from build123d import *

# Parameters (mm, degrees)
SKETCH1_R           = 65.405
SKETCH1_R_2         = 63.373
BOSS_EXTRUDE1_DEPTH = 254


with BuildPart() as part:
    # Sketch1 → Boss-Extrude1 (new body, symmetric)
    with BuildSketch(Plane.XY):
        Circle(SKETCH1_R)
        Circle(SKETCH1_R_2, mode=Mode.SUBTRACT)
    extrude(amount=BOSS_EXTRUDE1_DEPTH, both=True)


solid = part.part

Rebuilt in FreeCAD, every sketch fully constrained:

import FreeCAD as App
import Part
import Sketcher
from FreeCAD import Vector
Q = App.Units.Quantity

doc = App.newDocument("Part")
body = doc.addObject("PartDesign::Body", "Body")

# Sketch on XY plane
sketch1 = doc.addObject("Sketcher::SketchObject", "Sketch")
body.addObject(sketch1)
sketch1.AttachmentSupport = (doc.XY_Plane, [""])
sketch1.MapMode = "FlatFace"
sketch1.addGeometry([
    Part.Circle(Vector(0, 0, 0), Vector(0, 0, 1), 65),
    Part.Circle(Vector(0, 0, 0), Vector(0, 0, 1), 63),
], False)
sketch1.addConstraint([
    Sketcher.Constraint("Coincident", 0, 3, -1, 1),
    Sketcher.Constraint("Coincident", 1, 3, -1, 1),
    Sketcher.Constraint("Diameter", 0, Q("5.15 in")),
    Sketcher.Constraint("Diameter", 1, Q("4.99 in")),
])
pad1 = doc.addObject("PartDesign::Pad", "Pad")
body.addObject(pad1)
pad1.Profile = sketch1
pad1.Length = Q("20 in")
pad1.Midplane = True

doc.recompute()
